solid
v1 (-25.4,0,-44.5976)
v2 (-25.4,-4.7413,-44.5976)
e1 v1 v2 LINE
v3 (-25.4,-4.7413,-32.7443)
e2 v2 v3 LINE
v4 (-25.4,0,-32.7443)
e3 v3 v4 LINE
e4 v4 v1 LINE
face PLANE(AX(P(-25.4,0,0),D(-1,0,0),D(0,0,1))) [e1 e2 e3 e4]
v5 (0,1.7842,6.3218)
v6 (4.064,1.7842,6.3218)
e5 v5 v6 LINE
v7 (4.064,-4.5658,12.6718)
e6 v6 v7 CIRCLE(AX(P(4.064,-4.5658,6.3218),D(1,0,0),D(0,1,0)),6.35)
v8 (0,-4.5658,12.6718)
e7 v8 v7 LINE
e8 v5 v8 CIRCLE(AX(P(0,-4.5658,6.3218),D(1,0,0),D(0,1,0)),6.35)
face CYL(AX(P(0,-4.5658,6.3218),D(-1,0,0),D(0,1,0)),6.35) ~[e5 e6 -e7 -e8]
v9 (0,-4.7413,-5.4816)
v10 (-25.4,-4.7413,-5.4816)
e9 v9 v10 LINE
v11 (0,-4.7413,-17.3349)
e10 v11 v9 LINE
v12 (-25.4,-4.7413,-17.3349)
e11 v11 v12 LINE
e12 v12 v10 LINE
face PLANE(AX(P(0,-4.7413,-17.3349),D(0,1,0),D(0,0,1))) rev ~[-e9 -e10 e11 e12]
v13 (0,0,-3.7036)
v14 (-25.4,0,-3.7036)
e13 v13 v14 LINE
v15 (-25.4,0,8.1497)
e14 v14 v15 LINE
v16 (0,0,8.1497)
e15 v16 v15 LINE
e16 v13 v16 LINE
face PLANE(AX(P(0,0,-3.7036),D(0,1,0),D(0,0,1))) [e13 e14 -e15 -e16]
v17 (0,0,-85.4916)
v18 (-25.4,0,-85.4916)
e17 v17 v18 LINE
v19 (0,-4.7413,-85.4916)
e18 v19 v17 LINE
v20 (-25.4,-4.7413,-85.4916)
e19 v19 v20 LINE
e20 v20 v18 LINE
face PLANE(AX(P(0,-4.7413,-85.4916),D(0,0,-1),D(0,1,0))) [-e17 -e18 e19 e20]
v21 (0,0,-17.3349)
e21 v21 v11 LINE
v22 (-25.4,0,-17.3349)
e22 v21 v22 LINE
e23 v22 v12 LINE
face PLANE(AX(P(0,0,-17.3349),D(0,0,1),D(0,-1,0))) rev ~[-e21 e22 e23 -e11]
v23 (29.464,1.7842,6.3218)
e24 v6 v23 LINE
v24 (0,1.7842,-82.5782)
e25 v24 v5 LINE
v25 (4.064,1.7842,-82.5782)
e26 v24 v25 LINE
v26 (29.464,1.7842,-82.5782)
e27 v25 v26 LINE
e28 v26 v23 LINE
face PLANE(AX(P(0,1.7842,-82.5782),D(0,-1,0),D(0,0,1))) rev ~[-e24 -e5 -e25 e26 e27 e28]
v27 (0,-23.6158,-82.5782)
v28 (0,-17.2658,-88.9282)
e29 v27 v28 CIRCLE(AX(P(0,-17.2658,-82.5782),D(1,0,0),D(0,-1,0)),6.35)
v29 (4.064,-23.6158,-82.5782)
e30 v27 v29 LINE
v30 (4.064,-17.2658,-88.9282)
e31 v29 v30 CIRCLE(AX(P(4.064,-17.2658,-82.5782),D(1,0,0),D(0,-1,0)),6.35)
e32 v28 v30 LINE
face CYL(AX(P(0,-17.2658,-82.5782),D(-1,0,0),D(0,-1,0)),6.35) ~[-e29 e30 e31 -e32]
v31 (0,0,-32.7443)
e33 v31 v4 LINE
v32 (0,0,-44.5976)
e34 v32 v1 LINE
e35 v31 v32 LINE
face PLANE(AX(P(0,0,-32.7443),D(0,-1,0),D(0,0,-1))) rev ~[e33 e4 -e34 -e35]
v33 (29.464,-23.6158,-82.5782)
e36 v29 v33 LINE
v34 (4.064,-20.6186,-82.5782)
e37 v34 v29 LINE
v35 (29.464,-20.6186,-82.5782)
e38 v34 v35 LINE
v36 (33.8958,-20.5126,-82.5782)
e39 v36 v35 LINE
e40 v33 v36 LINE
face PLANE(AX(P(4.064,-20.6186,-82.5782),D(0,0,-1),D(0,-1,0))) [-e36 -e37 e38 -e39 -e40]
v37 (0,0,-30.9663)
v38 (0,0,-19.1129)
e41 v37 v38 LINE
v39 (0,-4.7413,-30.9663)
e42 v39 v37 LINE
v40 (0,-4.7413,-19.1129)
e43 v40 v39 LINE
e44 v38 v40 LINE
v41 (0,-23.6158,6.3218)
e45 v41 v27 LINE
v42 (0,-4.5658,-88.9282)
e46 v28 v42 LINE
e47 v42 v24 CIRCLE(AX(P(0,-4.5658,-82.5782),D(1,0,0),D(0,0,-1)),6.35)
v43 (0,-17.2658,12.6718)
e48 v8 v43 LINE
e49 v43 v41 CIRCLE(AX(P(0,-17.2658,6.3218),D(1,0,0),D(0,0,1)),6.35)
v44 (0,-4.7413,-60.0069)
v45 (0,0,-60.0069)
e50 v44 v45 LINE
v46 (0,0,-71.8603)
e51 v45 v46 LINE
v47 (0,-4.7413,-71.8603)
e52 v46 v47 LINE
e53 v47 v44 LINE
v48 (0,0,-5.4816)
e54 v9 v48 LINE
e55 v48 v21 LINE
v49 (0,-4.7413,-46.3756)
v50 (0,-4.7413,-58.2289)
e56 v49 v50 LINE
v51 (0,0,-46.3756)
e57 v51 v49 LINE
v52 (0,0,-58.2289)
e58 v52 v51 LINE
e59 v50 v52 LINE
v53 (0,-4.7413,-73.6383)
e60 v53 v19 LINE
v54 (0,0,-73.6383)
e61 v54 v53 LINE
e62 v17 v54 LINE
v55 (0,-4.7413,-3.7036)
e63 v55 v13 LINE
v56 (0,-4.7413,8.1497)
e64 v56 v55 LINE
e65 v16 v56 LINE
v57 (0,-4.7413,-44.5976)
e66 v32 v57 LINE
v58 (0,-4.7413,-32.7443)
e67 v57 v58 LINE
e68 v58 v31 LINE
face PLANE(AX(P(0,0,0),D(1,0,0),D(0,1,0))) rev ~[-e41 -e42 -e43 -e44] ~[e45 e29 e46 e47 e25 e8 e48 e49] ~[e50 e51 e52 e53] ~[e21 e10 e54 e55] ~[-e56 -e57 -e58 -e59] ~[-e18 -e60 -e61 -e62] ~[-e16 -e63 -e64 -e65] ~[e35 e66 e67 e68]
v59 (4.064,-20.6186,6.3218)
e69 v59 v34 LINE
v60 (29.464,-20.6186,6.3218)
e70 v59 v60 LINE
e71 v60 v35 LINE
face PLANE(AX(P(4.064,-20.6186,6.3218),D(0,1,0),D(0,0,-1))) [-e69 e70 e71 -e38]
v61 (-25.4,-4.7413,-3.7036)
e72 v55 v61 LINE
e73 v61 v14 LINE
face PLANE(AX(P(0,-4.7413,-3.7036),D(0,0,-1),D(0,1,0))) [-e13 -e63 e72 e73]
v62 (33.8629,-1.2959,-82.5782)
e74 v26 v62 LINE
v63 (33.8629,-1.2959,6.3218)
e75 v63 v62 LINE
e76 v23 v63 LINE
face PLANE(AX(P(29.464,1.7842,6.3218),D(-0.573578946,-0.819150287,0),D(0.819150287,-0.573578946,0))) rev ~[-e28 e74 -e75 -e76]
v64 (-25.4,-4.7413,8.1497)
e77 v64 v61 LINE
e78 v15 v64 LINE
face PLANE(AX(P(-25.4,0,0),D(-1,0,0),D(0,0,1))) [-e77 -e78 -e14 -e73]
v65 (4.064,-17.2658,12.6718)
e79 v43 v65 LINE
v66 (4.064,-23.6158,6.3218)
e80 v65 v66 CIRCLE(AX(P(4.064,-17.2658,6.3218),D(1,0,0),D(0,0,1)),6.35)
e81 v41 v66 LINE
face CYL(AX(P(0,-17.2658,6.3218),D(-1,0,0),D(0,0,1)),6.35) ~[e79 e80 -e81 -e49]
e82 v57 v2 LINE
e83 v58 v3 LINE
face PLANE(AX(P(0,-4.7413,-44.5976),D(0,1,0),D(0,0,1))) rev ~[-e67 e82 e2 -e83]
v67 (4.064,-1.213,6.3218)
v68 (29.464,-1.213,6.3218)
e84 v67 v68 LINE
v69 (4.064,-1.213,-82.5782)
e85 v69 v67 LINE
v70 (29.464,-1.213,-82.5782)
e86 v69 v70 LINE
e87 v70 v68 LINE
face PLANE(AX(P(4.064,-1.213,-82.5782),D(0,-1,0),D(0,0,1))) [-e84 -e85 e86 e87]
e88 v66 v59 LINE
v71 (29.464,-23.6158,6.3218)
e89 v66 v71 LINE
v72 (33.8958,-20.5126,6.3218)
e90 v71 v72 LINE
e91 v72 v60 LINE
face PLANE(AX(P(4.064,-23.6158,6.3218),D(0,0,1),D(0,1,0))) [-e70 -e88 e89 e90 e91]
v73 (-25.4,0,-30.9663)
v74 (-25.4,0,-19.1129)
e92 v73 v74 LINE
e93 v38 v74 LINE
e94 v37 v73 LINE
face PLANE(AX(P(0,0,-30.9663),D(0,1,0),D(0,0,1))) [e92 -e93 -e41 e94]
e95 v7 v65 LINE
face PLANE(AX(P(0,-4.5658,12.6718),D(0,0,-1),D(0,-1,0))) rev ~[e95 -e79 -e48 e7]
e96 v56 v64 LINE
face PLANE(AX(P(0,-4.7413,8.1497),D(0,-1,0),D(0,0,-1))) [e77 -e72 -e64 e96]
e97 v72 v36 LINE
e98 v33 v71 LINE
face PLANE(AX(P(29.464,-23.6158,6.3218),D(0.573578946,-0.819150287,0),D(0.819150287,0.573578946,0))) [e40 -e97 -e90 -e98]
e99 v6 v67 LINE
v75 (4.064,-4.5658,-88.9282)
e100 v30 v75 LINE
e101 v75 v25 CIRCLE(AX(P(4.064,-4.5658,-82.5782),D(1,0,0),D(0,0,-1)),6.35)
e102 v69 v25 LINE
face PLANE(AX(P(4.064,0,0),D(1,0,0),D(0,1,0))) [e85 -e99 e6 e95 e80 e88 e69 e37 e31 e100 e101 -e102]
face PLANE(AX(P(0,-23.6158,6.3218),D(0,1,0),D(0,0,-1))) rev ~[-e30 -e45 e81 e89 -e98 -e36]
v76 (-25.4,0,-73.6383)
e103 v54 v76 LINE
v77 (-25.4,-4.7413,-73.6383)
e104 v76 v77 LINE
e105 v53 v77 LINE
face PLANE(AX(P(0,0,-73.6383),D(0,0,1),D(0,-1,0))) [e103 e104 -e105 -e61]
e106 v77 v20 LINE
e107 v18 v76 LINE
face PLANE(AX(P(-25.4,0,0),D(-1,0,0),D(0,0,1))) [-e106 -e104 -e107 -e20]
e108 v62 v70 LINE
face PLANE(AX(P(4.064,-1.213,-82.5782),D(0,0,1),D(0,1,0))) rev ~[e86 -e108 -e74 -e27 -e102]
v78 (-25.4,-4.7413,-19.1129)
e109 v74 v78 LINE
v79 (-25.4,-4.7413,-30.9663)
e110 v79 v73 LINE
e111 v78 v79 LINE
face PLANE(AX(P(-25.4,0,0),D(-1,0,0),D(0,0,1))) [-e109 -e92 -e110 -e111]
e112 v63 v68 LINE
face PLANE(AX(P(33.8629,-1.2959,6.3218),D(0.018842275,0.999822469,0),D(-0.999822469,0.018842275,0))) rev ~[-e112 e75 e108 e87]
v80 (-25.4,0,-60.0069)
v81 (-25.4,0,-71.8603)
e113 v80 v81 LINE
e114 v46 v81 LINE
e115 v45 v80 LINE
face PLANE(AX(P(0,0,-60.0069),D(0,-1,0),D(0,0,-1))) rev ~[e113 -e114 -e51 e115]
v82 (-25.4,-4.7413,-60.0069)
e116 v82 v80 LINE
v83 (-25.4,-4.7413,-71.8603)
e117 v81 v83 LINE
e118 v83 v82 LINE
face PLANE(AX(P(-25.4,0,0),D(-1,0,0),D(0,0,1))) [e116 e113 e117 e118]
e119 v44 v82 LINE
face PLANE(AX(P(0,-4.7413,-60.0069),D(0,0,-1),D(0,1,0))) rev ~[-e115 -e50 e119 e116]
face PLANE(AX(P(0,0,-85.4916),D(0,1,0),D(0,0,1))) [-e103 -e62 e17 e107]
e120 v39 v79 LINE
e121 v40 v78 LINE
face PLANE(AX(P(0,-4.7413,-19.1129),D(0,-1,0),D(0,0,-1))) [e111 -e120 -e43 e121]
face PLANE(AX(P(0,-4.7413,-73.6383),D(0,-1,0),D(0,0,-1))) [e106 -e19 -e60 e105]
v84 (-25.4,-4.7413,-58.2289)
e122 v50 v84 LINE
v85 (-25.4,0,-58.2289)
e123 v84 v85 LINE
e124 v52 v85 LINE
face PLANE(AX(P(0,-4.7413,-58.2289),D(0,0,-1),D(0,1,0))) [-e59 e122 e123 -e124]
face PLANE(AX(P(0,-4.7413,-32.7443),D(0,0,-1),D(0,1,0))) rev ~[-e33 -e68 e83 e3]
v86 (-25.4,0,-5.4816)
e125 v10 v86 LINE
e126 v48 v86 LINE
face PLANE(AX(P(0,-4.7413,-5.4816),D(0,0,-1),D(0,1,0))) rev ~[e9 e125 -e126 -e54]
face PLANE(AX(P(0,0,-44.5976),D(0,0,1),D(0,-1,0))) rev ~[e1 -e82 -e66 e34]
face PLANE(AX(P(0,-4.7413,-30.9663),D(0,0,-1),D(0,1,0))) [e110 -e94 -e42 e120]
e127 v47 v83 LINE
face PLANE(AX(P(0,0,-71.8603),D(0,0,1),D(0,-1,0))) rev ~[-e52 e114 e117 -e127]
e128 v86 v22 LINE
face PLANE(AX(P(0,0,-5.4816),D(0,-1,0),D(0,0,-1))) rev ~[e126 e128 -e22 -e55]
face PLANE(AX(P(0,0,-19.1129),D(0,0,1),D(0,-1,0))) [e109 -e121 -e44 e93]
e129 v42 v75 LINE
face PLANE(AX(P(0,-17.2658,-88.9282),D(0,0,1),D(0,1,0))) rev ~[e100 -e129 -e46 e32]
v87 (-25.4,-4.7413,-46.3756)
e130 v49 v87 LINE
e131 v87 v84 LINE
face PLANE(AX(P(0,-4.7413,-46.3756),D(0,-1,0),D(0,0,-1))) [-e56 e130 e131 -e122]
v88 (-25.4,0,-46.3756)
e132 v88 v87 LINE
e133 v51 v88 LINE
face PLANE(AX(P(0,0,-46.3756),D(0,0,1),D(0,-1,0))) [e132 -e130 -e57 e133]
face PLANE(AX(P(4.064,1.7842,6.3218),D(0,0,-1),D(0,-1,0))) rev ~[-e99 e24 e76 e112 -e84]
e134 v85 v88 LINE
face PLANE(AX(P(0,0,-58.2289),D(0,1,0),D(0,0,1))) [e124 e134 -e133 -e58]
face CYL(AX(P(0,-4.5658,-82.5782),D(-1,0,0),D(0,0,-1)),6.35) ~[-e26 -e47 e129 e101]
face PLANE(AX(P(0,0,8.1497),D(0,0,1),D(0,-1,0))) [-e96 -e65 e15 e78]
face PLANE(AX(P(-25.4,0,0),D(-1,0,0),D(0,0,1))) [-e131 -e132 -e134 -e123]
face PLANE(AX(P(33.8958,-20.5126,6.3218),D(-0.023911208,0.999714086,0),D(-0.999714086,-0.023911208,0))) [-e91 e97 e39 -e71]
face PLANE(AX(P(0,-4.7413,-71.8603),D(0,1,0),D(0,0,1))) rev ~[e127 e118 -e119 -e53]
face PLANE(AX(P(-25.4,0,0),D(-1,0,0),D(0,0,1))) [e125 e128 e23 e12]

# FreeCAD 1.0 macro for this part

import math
import FreeCAD as App
import Part
import Sketcher

V = App.Vector
Q = App.Units.Quantity


def add_polygon(sketch, points):
    """Adds a closed chain of lines whose ends are joined by coincident constraints."""
    first, n = sketch.GeometryCount, len(points)
    for a, b in zip(points, points[1:] + points[:1]):
        sketch.addGeometry(Part.LineSegment(App.Vector(*a, 0), App.Vector(*b, 0)), False)
    for i in range(n):
        sketch.addConstraint(Sketcher.Constraint("Coincident", first + i, 2, first + (i + 1) % n, 1))

doc = App.newDocument("Part")
body = doc.addObject("PartDesign::Body", "Body")

sketch1 = body.newObject("Sketcher::SketchObject", "Sketch")
sketch1.AttachmentSupport = (doc.getObject("YZ_Plane"), [""])
sketch1.MapMode = "FlatFace"
sketch1.addGeometry(Part.ArcOfCircle(Part.Circle(V(-5, 6, 0), V(0, 0, 1), 6), math.radians(0), math.radians(90)), False)
sketch1.addGeometry(Part.LineSegment(V(-5, 13, 0), V(-17, 13, 0)), False)
sketch1.addGeometry(Part.ArcOfCircle(Part.Circle(V(-17, 6, 0), V(0, 0, 1), 6), math.radians(90), math.radians(180)), False)
sketch1.addGeometry(Part.LineSegment(V(-24, 6, 0), V(-24, -83, 0)), False)
sketch1.addGeometry(Part.ArcOfCircle(Part.Circle(V(-17, -83, 0), V(0, 0, 1), 6), math.radians(180), math.radians(270)), False)
sketch1.addGeometry(Part.LineSegment(V(-17, -89, 0), V(-5, -89, 0)), False)
sketch1.addGeometry(Part.ArcOfCircle(Part.Circle(V(-5, -83, 0), V(0, 0, 1), 6), math.radians(-90), math.radians(0)), False)
sketch1.addGeometry(Part.LineSegment(V(2, -83, 0), V(2, 6, 0)), False)
sketch1.addConstraint(Sketcher.Constraint("Tangent", 0, 2, 1, 1))
sketch1.addConstraint(Sketcher.Constraint("Tangent", 1, 2, 2, 1))
sketch1.addConstraint(Sketcher.Constraint("Tangent", 2, 2, 3, 1))
sketch1.addConstraint(Sketcher.Constraint("Tangent", 3, 2, 4, 1))
sketch1.addConstraint(Sketcher.Constraint("Tangent", 4, 2, 5, 1))
sketch1.addConstraint(Sketcher.Constraint("Tangent", 5, 2, 6, 1))
sketch1.addConstraint(Sketcher.Constraint("Tangent", 6, 2, 7, 1))
sketch1.addConstraint(Sketcher.Constraint("Tangent", 7, 2, 0, 1))
sketch1.addConstraint(Sketcher.Constraint("Horizontal", 1))
sketch1.addConstraint(Sketcher.Constraint("Vertical", 3))
sketch1.addConstraint(Sketcher.Constraint("Horizontal", 5))
sketch1.addConstraint(Sketcher.Constraint("Vertical", 7))
sketch1.addConstraint(Sketcher.Constraint("Equal", 0, 2))
sketch1.addConstraint(Sketcher.Constraint("Equal", 2, 4))
sketch1.addConstraint(Sketcher.Constraint("Equal", 4, 6))
sketch1.addConstraint(Sketcher.Constraint("Radius", 0, Q("0.25 in")))
sketch1.addConstraint(Sketcher.Constraint("DistanceX", 3, 2, 6, 2, Q("1 in")))
sketch1.addConstraint(Sketcher.Constraint("DistanceY", 3, 2, 3, 1, Q("3.5 in")))
sketch1.addConstraint(Sketcher.Constraint("DistanceY", -1, 1, 0, 3, Q("0.2489 in")))
sketch1.addConstraint(Sketcher.Constraint("DistanceX", 0, 3, -1, 1, 4.5658))
pad1 = body.newObject("PartDesign::Pad", "Pad")
pad1.Profile = sketch1
pad1.Length = Q("0.16 in")

sketch2 = body.newObject("Sketcher::SketchObject", "Sketch001")
sketch2.AttachmentSupport = (doc.getObject("YZ_Plane"), [""])
sketch2.MapMode = "FlatFace"
sketch2.AttachmentOffset = App.Placement(V(0, 0, 0.16 * 25.4), App.Rotation())
add_polygon(sketch2, [(-1.2, -82.6), (1.8, -82.6), (1.8, 6.3), (-1.2, 6.3)])
add_polygon(sketch2, [(-20.6, -82.6), (-20.6, 6.3), (-23.6, 6.3), (-23.6, -82.6)])
sketch2.addConstraint(Sketcher.Constraint("Horizontal", 0))
sketch2.addConstraint(Sketcher.Constraint("Vertical", 1))
sketch2.addConstraint(Sketcher.Constraint("Horizontal", 2))
sketch2.addConstraint(Sketcher.Constraint("Vertical", 3))
sketch2.addConstraint(Sketcher.Constraint("Vertical", 4))
sketch2.addConstraint(Sketcher.Constraint("Horizontal", 5))
sketch2.addConstraint(Sketcher.Constraint("Vertical", 6))
sketch2.addConstraint(Sketcher.Constraint("Horizontal", 7))
sketch2.addConstraint(Sketcher.Constraint("Horizontal", 2, 2, 4, 2))
sketch2.addConstraint(Sketcher.Constraint("Horizontal", 3, 2, 6, 2))
sketch2.addConstraint(Sketcher.Constraint("Equal", 2, 5))
sketch2.addConstraint(Sketcher.Constraint("DistanceY", 1, 1, 1, 2, Q("3.5 in")))
sketch2.addConstraint(Sketcher.Constraint("DistanceX", 4, 2, 2, 2, Q("0.764 in")))
sketch2.addConstraint(Sketcher.Constraint("DistanceX", 5, 2, 1, 2, Q("1 in")))
sketch2.addConstraint(Sketcher.Constraint("DistanceY", 0, 2, -1, 1, Q("3.2511 in")))
sketch2.addConstraint(Sketcher.Constraint("DistanceX", -1, 1, 0, 2, 1.7842))
pad2 = body.newObject("PartDesign::Pad", "Pad001")
pad2.Profile = sketch2
pad2.Length = Q("1 in")

sketch3 = body.newObject("Sketcher::SketchObject", "Sketch002")
sketch3.AttachmentSupport = (doc.getObject("YZ_Plane"), [""])
sketch3.MapMode = "FlatFace"
add_polygon(sketch3, [(-4.7, -5.5), (0, -5.5), (0, -17.3), (-4.7, -17.3)])
add_polygon(sketch3, [(0, -19.1), (0, -31), (-4.7, -31), (-4.7, -19.1)])
add_polygon(sketch3, [(-4.7, -32.7), (0, -32.7), (0, -44.6), (-4.7, -44.6)])
add_polygon(sketch3, [(0, -58.2), (-4.7, -58.2), (-4.7, -46.4), (0, -46.4)])
add_polygon(sketch3, [(-4.7, -60), (0, -60), (0, -71.9), (-4.7, -71.9)])
add_polygon(sketch3, [(0, -73.6), (0, -85.5), (-4.7, -85.5), (-4.7, -73.6)])
add_polygon(sketch3, [(0, 8.1), (0, -3.7), (-4.7, -3.7), (-4.7, 8.1)])
sketch3.addConstraint(Sketcher.Constraint("Horizontal", 0))
sketch3.addConstraint(Sketcher.Constraint("Vertical", 1))
sketch3.addConstraint(Sketcher.Constraint("Horizontal", 2))
sketch3.addConstraint(Sketcher.Constraint("Vertical", 3))
sketch3.addConstraint(Sketcher.Constraint("Vertical", 4))
sketch3.addConstraint(Sketcher.Constraint("Horizontal", 5))
sketch3.addConstraint(Sketcher.Constraint("Vertical", 6))
sketch3.addConstraint(Sketcher.Constraint("Horizontal", 7))
sketch3.addConstraint(Sketcher.Constraint("Horizontal", 8))
sketch3.addConstraint(Sketcher.Constraint("Vertical", 9))
sketch3.addConstraint(Sketcher.Constraint("Horizontal", 10))
sketch3.addConstraint(Sketcher.Constraint("Vertical", 11))
sketch3.addConstraint(Sketcher.Constraint("Horizontal", 12))
sketch3.addConstraint(Sketcher.Constraint("Vertical", 13))
sketch3.addConstraint(Sketcher.Constraint("Horizontal", 14))
sketch3.addConstraint(Sketcher.Constraint("Vertical", 15))
sketch3.addConstraint(Sketcher.Constraint("Horizontal", 16))
sketch3.addConstraint(Sketcher.Constraint("Vertical", 17))
sketch3.addConstraint(Sketcher.Constraint("Horizontal", 18))
sketch3.addConstraint(Sketcher.Constraint("Vertical", 19))
sketch3.addConstraint(Sketcher.Constraint("Vertical", 20))
sketch3.addConstraint(Sketcher.Constraint("Horizontal", 21))
sketch3.addConstraint(Sketcher.Constraint("Vertical", 22))
sketch3.addConstraint(Sketcher.Constraint("Horizontal", 23))
sketch3.addConstraint(Sketcher.Constraint("Vertical", 24))
sketch3.addConstraint(Sketcher.Constraint("Horizontal", 25))
sketch3.addConstraint(Sketcher.Constraint("Vertical", 26))
sketch3.addConstraint(Sketcher.Constraint("Horizontal", 27))
sketch3.addConstraint(Sketcher.Constraint("PointOnObject", 0, 2, -2))
sketch3.addConstraint(Sketcher.Constraint("PointOnObject", 4, 2, -2))
sketch3.addConstraint(Sketcher.Constraint("PointOnObject", 8, 2, -2))
sketch3.addConstraint(Sketcher.Constraint("PointOnObject", 14, 2, -2))
sketch3.addConstraint(Sketcher.Constraint("PointOnObject", 16, 2, -2))
sketch3.addConstraint(Sketcher.Constraint("PointOnObject", 20, 2, -2))
sketch3.addConstraint(Sketcher.Constraint("PointOnObject", 24, 2, -2))
sketch3.addConstraint(Sketcher.Constraint("Vertical", 3, 2, 5, 2))
sketch3.addConstraint(Sketcher.Constraint("Vertical", 6, 2, 10, 2))
sketch3.addConstraint(Sketcher.Constraint("Vertical", 11, 2, 12, 2))
sketch3.addConstraint(Sketcher.Constraint("Vertical", 13, 2, 18, 2))
sketch3.addConstraint(Sketcher.Constraint("Vertical", 19, 2, 21, 2))
sketch3.addConstraint(Sketcher.Constraint("Vertical", 22, 2, 25, 2))
sketch3.addConstraint(Sketcher.Constraint("Equal", 3, 4))
sketch3.addConstraint(Sketcher.Constraint("Equal", 6, 9))
sketch3.addConstraint(Sketcher.Constraint("Equal", 11, 13))
sketch3.addConstraint(Sketcher.Constraint("Equal", 15, 17))
sketch3.addConstraint(Sketcher.Constraint("Equal", 19, 20))
sketch3.addConstraint(Sketcher.Constraint("Equal", 22, 24))
sketch3.addConstraint(Sketcher.Constraint("DistanceY", 6, 2, 2, 2, Q("0.07 in")))
sketch3.addConstraint(Sketcher.Constraint("DistanceY", 8, 2, 4, 2, Q("0.07 in")))
sketch3.addConstraint(Sketcher.Constraint("DistanceY", 13, 2, 10, 2, Q("0.07 in")))
sketch3.addConstraint(Sketcher.Constraint("DistanceY", 16, 2, 15, 2, Q("0.07 in")))
sketch3.addConstraint(Sketcher.Constraint("DistanceY", 22, 2, 18, 2, Q("0.07 in")))
sketch3.addConstraint(Sketcher.Constraint("DistanceY", 0, 2, 24, 2, Q("0.07 in")))
sketch3.addConstraint(Sketcher.Constraint("DistanceX", 0, 1, 0, 2, 4.7413))
sketch3.addConstraint(Sketcher.Constraint("DistanceY", 1, 2, 1, 1, 11.8533))
sketch3.addConstraint(Sketcher.Constraint("DistanceY", 0, 2, -1, 1, Q("0.2158 in")))
pad3 = body.newObject("PartDesign::Pad", "Pad002")
pad3.Profile = sketch3
pad3.Length = Q("1 in")
pad3.Reversed = True

sketch4 = body.newObject("Sketcher::SketchObject", "Sketch003")
sketch4.AttachmentSupport = (doc.getObject("XY_Plane"), [""])
sketch4.MapMode = "FlatFace"
sketch4.AttachmentOffset = App.Placement(V(0, 0, 0.2488898 * 25.4), App.Rotation())
add_polygon(sketch4, [(33.9, -1.3), (29.5, 1.8), (29.5, -1.2)])
add_polygon(sketch4, [(33.9, -20.5), (29.5, -20.6), (29.5, -23.6)])
sketch4.addConstraint(Sketcher.Constraint("Vertical", 1))
sketch4.addConstraint(Sketcher.Constraint("Vertical", 4))
sketch4.addConstraint(Sketcher.Constraint("Vertical", 1, 2, 3, 2))
sketch4.addConstraint(Sketcher.Constraint("Equal", 1, 4))
sketch4.addConstraint(Sketcher.Constraint("Distance", 5, Q("0.213 in")))
sketch4.addConstraint(Sketcher.Constraint("Angle", 0, Q("144.9998 deg")))
sketch4.addConstraint(Sketcher.Constraint("Angle", 5, Q("35.0002 deg")))
sketch4.addConstraint(Sketcher.Constraint("DistanceY", 4, 2, 0, 2, Q("1 in")))
sketch4.addConstraint(Sketcher.Constraint("DistanceY", 1, 2, 1, 1, Q("0.118 in")))
sketch4.addConstraint(Sketcher.Constraint("DistanceX", -1, 1, 0, 2, Q("1.16 in")))
sketch4.addConstraint(Sketcher.Constraint("Angle", 2, Q("-1.0796 deg")))
sketch4.addConstraint(Sketcher.Constraint("DistanceY", -1, 1, 0, 2, 1.7842))
pad4 = body.newObject("PartDesign::Pad", "Pad003")
pad4.Profile = sketch4
pad4.Length = Q("3.5 in")
pad4.Reversed = True

doc.recompute()
